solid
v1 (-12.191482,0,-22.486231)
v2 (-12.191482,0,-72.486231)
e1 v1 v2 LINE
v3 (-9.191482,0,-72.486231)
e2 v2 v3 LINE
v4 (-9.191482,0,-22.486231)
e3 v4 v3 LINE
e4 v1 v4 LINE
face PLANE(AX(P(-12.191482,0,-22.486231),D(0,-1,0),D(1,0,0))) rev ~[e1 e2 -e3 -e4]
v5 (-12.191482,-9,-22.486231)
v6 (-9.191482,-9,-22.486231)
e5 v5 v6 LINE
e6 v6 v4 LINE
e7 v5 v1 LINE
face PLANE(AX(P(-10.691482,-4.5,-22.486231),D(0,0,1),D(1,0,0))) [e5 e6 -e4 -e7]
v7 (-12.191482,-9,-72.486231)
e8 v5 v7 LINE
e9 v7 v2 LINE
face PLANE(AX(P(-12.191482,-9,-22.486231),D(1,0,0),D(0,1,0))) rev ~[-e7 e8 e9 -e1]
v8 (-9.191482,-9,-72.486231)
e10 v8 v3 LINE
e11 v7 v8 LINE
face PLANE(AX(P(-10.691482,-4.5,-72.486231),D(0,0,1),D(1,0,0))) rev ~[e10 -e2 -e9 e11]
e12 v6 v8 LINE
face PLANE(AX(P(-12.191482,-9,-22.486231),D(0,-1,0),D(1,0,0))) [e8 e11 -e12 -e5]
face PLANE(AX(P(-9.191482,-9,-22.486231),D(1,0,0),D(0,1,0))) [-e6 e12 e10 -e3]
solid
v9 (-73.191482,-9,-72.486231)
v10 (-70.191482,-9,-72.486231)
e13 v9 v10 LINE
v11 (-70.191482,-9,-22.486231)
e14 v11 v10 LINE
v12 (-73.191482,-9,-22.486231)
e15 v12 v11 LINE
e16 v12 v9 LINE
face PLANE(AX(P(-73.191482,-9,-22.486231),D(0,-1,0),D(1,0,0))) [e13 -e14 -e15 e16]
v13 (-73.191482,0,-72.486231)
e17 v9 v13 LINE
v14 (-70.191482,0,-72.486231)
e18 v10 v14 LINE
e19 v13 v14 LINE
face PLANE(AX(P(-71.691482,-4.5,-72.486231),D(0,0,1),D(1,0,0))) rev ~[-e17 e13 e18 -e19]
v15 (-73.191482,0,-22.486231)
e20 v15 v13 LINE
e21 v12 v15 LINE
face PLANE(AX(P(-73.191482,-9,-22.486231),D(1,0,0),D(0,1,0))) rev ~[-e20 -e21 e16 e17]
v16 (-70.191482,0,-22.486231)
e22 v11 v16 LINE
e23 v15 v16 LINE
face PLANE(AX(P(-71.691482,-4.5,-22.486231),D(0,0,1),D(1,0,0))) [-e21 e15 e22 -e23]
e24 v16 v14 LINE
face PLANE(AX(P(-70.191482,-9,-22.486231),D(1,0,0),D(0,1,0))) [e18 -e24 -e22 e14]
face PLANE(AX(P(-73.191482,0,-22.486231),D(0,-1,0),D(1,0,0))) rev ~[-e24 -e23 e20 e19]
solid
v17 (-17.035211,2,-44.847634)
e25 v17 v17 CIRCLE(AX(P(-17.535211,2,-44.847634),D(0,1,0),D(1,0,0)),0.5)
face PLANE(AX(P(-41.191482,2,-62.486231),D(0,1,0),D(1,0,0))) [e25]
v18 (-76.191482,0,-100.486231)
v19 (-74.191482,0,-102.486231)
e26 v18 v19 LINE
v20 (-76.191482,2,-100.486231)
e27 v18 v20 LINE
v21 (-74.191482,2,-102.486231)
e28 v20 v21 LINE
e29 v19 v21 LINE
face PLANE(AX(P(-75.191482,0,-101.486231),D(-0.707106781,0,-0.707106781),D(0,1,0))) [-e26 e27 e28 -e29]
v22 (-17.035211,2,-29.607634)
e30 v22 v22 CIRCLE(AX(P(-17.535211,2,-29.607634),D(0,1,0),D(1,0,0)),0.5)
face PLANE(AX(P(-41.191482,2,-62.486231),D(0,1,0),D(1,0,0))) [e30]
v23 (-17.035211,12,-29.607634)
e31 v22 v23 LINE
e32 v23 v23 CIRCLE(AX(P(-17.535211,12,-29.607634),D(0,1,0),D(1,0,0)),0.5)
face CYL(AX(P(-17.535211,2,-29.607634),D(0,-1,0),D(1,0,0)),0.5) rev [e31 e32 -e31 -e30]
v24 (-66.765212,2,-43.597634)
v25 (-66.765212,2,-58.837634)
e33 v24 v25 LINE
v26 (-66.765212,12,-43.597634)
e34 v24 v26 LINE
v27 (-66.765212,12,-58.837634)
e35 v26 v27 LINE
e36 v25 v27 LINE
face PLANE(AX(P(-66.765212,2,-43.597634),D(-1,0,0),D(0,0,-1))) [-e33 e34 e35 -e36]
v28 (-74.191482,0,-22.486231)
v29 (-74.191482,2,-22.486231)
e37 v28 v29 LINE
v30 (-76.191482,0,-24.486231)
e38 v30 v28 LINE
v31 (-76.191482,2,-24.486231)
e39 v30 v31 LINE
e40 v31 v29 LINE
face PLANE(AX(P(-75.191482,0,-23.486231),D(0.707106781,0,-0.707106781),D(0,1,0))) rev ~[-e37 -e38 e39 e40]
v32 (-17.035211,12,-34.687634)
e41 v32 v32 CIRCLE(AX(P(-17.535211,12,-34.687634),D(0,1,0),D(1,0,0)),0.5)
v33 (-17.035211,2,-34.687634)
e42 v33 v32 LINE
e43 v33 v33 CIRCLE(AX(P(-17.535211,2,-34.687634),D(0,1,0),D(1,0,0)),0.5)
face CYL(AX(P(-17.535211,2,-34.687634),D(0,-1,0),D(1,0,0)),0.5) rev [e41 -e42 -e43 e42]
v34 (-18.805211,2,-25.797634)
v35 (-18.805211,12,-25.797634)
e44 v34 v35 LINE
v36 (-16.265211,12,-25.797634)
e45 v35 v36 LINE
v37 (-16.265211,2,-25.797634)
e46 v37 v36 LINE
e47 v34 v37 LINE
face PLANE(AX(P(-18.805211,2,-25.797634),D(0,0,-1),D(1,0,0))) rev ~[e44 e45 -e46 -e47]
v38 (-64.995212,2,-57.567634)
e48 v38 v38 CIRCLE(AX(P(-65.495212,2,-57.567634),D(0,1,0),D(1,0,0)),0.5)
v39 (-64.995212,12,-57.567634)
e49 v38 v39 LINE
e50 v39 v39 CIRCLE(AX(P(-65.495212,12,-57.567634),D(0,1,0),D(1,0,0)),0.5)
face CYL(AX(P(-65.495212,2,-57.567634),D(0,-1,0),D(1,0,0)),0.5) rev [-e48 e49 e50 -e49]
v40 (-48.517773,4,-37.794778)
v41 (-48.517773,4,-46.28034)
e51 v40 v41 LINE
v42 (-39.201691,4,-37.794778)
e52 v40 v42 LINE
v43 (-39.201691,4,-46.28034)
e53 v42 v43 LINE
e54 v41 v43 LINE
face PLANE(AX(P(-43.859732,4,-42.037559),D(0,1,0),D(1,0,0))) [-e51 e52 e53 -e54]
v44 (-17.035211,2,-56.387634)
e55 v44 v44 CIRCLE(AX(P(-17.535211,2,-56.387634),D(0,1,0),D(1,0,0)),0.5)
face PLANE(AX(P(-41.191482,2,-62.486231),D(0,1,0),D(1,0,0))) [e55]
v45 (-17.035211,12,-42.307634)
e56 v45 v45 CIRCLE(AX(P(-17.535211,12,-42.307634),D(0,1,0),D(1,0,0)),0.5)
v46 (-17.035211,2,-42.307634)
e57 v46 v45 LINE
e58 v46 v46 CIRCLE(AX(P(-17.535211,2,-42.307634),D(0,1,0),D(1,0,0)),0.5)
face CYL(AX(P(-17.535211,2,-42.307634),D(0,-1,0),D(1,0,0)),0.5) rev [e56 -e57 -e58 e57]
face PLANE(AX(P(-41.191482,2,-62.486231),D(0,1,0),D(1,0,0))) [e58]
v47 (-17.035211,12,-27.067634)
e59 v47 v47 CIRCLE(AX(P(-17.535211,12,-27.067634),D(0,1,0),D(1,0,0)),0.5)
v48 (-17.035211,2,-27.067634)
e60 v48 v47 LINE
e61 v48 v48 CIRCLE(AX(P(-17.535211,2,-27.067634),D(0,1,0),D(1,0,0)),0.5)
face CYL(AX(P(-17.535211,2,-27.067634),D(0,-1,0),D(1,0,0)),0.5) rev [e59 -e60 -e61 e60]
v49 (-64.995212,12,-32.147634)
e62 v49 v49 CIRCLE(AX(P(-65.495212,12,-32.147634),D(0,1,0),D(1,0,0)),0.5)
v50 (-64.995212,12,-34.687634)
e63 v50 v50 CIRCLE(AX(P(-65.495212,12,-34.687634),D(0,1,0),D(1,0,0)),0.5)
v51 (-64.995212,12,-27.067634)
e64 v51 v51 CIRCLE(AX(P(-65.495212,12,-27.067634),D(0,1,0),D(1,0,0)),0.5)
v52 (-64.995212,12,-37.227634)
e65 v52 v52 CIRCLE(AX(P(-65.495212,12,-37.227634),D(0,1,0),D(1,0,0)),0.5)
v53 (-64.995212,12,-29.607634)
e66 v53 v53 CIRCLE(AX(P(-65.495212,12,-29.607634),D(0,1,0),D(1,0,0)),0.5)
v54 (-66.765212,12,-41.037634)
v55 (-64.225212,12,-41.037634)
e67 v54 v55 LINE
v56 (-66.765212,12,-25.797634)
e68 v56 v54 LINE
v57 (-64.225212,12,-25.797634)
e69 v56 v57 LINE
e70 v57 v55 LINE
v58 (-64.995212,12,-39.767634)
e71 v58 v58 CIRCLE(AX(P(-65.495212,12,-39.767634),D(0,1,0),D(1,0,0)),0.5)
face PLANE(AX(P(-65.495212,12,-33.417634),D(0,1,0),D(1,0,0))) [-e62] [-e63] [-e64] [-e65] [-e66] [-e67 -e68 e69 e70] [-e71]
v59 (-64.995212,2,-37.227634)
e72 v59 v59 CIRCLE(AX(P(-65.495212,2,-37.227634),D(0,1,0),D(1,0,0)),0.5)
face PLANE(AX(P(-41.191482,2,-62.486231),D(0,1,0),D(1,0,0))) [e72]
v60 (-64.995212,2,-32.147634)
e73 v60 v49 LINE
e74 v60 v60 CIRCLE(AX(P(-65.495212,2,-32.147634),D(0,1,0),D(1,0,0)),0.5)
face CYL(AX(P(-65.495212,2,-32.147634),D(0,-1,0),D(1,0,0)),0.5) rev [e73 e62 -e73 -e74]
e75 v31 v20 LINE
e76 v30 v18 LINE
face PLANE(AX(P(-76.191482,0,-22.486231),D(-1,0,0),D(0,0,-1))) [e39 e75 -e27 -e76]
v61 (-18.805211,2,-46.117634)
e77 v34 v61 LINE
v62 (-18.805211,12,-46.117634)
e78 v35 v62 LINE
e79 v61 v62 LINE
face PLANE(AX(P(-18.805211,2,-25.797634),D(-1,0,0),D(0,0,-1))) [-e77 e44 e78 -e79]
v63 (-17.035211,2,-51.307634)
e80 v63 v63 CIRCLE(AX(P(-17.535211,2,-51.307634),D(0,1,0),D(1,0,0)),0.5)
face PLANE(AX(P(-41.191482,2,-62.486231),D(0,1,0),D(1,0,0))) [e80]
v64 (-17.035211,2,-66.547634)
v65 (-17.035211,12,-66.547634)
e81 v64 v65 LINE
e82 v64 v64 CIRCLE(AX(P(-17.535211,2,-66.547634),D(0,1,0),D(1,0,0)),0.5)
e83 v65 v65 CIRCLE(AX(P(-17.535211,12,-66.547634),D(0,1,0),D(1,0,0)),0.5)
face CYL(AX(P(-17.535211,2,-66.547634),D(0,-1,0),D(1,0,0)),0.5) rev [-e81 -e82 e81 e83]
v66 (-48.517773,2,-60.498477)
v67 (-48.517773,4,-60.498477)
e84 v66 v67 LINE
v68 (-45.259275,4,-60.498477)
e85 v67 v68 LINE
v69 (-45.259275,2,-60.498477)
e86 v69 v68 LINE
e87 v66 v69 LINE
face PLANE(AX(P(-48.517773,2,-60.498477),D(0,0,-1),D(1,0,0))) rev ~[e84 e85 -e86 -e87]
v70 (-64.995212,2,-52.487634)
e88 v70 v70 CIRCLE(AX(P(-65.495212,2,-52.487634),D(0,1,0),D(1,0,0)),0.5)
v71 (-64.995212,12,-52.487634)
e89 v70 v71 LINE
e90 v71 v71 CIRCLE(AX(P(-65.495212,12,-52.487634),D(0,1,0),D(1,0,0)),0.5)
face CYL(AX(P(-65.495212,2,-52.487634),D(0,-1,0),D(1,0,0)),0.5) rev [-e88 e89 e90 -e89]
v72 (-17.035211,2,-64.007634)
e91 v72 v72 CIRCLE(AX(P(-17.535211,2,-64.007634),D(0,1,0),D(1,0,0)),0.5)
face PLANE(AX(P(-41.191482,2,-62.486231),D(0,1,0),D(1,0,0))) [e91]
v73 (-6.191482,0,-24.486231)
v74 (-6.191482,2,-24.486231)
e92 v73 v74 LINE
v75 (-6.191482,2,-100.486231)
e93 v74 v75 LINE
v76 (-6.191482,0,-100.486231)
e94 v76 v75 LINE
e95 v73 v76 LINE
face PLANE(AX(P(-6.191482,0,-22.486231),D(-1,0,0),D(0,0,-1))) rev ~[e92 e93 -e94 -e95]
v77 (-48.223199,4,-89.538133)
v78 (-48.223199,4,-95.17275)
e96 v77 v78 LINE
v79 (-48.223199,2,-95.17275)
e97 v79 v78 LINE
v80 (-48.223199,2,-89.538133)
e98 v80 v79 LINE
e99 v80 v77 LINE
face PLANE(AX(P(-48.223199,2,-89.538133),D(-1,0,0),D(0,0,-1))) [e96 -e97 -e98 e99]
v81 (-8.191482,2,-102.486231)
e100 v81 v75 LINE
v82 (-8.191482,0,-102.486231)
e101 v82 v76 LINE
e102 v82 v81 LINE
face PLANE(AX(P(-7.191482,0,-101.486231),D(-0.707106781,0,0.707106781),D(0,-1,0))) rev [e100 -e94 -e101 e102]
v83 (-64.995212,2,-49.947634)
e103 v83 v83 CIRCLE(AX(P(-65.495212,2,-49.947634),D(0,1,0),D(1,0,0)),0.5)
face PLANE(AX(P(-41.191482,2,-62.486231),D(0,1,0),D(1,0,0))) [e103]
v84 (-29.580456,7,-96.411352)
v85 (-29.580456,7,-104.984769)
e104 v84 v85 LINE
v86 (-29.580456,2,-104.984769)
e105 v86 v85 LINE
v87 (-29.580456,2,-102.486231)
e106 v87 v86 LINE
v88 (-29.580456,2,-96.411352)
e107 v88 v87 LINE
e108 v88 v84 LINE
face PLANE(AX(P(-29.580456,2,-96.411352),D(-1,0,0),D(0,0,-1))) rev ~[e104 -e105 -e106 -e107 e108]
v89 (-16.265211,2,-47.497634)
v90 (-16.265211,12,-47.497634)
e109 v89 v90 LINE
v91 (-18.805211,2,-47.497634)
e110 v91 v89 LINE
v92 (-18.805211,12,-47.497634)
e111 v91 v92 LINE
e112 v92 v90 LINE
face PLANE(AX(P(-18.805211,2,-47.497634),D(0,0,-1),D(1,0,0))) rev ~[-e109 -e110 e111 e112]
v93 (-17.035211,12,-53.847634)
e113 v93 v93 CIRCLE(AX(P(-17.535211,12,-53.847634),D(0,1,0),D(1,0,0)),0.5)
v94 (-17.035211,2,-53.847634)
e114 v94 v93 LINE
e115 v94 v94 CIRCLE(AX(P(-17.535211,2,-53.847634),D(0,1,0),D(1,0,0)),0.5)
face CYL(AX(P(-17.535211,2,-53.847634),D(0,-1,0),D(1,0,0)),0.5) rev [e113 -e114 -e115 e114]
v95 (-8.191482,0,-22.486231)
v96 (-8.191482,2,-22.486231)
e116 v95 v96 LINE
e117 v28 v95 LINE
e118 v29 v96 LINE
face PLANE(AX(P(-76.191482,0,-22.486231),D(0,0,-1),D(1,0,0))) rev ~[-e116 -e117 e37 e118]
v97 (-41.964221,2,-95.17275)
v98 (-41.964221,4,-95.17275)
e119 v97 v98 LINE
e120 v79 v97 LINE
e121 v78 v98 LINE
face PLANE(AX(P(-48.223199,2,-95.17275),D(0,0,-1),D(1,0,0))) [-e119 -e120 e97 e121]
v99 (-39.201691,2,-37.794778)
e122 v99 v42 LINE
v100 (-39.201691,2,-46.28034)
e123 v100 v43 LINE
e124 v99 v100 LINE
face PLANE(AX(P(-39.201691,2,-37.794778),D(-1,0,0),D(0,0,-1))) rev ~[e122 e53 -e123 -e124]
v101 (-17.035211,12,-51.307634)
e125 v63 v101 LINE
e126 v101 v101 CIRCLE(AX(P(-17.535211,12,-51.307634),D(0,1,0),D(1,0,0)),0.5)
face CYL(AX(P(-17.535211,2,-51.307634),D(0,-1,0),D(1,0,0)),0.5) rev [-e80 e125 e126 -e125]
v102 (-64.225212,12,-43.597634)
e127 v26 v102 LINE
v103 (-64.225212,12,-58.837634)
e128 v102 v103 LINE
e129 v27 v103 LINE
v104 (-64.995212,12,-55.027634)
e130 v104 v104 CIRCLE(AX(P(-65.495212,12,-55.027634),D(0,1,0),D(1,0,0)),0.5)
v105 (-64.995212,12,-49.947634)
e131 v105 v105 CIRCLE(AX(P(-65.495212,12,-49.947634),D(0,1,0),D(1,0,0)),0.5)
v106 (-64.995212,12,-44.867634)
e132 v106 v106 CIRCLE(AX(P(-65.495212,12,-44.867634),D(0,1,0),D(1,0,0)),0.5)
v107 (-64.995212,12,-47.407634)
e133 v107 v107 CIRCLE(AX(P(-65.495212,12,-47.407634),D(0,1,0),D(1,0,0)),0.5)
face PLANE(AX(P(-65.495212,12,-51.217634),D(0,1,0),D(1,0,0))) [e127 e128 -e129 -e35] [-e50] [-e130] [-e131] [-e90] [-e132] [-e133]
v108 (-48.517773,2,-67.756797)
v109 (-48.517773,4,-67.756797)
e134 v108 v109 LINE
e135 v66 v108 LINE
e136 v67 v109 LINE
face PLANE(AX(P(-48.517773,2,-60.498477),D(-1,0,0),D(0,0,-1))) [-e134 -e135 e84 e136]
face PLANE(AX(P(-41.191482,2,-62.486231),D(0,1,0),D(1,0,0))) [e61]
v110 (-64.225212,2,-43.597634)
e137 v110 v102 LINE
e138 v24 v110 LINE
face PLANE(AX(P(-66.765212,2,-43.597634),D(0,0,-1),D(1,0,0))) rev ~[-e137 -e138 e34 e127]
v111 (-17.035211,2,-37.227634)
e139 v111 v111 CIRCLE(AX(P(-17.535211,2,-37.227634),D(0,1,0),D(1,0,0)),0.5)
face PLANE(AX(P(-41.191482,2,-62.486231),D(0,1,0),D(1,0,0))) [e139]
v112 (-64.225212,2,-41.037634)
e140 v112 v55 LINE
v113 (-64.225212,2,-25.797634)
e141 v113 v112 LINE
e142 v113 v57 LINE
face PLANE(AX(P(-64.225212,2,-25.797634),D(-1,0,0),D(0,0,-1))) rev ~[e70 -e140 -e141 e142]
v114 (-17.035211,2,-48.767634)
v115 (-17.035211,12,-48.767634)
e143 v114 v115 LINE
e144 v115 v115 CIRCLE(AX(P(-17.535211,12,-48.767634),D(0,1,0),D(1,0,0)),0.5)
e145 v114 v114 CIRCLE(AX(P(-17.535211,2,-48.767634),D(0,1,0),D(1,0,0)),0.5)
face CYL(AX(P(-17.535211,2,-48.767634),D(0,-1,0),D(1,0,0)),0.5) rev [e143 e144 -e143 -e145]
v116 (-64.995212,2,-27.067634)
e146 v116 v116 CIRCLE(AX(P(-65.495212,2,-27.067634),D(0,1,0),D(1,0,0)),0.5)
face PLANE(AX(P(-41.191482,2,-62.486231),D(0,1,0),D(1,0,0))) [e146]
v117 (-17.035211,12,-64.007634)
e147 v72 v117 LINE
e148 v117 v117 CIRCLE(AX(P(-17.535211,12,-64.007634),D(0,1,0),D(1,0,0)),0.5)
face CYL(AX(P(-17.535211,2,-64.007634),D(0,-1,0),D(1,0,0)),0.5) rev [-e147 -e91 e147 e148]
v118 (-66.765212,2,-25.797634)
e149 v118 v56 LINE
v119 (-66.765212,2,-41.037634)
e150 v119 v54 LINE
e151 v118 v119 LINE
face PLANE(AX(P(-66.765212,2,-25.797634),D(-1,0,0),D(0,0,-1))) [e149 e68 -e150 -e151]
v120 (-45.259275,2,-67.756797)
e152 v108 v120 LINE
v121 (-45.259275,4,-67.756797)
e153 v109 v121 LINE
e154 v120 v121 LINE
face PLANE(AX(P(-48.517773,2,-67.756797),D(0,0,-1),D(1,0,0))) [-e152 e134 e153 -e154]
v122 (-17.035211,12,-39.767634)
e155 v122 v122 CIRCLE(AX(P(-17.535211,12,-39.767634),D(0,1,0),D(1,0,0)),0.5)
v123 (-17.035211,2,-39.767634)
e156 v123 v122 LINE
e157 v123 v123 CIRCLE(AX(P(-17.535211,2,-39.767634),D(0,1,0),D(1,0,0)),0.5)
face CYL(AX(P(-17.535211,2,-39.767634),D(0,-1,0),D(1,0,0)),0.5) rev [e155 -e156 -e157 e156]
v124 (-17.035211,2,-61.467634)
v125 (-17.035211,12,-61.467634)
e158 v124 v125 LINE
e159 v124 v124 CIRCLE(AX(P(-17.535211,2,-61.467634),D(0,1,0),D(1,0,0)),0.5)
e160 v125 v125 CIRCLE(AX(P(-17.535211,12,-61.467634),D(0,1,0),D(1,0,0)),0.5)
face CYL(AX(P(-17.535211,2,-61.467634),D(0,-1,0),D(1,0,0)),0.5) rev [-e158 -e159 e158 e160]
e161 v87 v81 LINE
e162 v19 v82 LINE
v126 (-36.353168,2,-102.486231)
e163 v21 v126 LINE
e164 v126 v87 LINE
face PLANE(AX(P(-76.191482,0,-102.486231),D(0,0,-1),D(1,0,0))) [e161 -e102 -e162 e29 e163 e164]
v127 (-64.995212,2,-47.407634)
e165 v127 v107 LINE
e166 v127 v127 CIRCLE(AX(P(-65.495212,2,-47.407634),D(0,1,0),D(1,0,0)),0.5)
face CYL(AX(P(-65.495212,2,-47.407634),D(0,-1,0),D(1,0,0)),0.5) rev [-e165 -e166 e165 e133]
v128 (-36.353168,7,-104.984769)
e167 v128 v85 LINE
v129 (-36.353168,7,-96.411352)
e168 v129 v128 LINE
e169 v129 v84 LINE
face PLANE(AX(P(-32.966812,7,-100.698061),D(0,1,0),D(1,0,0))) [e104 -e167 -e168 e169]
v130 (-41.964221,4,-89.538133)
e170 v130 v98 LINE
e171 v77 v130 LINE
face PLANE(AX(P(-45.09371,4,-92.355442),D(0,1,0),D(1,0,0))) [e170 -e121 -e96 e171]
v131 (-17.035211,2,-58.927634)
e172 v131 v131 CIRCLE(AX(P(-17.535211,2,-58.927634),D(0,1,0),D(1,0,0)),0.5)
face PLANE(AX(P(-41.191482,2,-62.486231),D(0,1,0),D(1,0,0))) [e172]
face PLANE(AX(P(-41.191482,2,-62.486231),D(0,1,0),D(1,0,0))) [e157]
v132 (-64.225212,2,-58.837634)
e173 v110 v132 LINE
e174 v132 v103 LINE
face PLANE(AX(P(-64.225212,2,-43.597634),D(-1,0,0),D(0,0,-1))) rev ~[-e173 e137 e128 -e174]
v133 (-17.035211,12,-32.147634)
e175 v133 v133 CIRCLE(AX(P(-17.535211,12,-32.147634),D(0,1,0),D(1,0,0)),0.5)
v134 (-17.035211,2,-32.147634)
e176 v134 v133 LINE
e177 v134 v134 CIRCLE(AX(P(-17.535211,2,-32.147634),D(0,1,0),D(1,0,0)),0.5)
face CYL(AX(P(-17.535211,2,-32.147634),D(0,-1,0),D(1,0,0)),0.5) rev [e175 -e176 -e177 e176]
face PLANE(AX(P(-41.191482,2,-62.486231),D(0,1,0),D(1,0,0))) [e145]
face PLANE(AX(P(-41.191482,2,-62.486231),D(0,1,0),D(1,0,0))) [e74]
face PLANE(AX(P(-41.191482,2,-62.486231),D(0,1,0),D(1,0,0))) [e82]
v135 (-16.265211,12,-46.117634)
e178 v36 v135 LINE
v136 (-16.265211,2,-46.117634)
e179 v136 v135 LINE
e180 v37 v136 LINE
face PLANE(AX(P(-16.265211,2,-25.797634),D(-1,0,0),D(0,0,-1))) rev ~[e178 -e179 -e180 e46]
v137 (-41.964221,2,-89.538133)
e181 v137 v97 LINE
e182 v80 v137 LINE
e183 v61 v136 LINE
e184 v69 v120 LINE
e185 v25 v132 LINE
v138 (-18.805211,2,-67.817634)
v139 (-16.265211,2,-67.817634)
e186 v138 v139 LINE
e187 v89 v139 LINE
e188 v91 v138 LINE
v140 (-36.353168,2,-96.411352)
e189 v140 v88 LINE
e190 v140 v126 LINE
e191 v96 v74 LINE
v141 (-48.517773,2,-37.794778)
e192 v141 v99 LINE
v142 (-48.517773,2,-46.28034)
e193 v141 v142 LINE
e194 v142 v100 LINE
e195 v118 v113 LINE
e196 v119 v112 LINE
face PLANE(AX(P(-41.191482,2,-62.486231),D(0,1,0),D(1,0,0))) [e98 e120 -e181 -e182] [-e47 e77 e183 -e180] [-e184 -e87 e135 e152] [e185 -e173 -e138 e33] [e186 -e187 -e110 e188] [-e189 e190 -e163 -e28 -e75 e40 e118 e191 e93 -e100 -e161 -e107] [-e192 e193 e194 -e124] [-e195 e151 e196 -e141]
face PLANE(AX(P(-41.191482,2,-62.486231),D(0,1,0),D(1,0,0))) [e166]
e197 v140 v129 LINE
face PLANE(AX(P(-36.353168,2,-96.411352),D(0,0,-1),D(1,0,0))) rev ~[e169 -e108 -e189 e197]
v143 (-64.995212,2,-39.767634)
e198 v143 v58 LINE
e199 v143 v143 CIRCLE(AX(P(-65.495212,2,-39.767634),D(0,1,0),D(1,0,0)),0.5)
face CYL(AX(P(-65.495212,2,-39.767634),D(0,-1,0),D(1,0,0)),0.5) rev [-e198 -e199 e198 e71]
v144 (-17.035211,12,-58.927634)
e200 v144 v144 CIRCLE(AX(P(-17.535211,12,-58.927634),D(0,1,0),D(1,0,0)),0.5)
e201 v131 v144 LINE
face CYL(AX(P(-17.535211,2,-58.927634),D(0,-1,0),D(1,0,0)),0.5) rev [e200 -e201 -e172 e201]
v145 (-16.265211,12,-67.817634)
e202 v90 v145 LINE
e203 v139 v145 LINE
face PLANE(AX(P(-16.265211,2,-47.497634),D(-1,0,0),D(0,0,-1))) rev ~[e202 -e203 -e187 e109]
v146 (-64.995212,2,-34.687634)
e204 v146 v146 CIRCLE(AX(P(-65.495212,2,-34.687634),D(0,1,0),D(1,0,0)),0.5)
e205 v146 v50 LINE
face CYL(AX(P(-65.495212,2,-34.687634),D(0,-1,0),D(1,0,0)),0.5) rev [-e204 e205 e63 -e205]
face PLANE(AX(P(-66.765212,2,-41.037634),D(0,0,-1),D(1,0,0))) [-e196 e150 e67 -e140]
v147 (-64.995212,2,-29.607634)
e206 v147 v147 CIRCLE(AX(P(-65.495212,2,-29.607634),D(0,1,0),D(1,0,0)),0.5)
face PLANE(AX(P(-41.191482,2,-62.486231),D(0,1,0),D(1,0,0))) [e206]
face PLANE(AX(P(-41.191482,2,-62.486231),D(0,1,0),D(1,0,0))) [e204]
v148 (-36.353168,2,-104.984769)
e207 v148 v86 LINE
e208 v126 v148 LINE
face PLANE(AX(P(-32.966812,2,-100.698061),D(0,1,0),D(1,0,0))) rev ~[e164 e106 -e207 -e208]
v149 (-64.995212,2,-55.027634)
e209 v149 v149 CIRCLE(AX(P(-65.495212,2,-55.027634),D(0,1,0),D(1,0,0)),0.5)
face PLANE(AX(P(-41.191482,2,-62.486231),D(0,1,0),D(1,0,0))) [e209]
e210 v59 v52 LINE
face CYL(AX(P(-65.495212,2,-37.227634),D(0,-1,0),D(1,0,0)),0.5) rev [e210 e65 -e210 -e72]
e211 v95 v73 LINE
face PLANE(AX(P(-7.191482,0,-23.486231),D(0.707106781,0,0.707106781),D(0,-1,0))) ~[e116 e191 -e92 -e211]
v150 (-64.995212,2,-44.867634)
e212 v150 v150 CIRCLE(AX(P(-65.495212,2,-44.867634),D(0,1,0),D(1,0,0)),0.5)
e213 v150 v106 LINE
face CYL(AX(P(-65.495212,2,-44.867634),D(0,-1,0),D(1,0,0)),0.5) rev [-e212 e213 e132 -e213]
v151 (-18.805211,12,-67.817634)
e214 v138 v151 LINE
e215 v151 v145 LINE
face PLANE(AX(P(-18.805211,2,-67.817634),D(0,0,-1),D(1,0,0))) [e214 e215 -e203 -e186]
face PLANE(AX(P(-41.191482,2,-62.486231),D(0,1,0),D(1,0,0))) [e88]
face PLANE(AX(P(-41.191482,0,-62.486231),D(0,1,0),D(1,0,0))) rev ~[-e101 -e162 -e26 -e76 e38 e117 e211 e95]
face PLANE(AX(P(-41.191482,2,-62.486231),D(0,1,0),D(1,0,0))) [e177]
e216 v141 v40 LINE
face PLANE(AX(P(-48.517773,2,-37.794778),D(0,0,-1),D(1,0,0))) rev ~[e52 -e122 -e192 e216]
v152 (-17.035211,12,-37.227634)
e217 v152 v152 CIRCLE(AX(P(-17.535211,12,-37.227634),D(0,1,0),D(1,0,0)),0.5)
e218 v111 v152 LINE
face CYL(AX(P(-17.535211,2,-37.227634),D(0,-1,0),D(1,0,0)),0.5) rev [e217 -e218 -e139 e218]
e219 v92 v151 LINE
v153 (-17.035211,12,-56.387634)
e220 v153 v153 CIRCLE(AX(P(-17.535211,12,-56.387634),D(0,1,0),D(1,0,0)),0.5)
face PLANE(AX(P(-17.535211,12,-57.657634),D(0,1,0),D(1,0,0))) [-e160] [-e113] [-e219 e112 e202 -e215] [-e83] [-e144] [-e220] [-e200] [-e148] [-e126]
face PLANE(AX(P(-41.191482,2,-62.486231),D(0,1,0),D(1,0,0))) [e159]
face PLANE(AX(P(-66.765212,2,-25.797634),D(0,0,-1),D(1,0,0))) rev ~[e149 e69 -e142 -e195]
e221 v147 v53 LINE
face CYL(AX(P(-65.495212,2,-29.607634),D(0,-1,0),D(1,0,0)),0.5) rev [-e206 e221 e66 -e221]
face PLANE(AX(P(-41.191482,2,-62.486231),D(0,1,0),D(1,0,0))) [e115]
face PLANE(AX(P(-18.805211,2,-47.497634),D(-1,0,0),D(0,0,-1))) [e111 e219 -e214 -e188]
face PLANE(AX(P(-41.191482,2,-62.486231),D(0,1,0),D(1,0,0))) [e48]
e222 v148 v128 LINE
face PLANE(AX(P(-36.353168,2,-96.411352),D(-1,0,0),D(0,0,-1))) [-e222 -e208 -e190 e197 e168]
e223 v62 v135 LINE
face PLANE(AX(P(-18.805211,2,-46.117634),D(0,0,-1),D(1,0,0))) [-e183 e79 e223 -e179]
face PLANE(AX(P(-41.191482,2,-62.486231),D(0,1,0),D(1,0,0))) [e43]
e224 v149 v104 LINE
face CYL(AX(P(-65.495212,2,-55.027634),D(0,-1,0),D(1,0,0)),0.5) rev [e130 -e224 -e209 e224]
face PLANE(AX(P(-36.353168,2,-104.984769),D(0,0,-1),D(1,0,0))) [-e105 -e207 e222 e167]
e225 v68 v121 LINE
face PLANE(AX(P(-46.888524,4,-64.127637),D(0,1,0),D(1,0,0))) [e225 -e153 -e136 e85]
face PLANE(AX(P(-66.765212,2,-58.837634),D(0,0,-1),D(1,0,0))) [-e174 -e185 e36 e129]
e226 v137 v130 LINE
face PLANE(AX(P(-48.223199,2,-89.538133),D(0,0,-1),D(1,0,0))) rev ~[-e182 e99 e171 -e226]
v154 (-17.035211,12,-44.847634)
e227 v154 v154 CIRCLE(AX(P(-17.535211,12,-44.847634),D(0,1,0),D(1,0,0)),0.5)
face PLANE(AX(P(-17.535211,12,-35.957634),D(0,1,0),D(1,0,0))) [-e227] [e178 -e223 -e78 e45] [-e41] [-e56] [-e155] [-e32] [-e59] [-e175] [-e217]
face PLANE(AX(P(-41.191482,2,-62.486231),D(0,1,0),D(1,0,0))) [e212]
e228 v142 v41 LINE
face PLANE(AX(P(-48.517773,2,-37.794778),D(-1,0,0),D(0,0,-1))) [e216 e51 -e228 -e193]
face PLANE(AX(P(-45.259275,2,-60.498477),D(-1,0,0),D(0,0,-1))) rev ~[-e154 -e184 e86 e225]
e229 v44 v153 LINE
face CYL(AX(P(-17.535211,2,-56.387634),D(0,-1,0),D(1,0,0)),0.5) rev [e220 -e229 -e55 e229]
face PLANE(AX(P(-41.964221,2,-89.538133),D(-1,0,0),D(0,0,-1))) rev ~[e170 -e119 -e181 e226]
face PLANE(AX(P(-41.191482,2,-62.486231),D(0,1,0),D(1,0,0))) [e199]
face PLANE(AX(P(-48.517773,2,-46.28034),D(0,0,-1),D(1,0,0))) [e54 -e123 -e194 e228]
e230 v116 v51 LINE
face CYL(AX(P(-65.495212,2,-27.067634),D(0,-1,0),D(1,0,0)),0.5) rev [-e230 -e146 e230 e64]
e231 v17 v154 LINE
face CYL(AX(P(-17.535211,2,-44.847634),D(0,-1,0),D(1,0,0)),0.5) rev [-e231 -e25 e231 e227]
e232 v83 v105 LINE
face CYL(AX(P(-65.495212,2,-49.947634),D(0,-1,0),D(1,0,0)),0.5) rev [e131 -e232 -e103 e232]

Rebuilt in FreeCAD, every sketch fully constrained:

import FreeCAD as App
import Part
import Sketcher


def edges_at(feature, points):
    """Names of the edges that pass closest to the given points."""
    edges = feature.Shape.Edges
    near = lambda p: min(range(len(edges)), key=lambda i: edges[i].distToShape(Part.Vertex(*p))[0])
    return sorted({f"Edge{near(p) + 1}" for p in points})

doc = App.newDocument("Part")
body = doc.addObject("PartDesign::Body", "Body")

# Sketch on XZ plane
sketch1 = body.newObject("Sketcher::SketchObject", "Sketch")
sketch1.AttachmentSupport = (doc.getObject("XZ_Plane"), [""])
sketch1.MapMode = "FlatFace"
sketch1.addGeometry(Part.LineSegment(App.Vector(-76.191482, -102.486231, 0), App.Vector(-76.191482, -22.486231, 0)), False)
sketch1.addGeometry(Part.LineSegment(App.Vector(-76.191482, -22.486231, 0), App.Vector(-6.191482, -22.486231, 0)), False)
sketch1.addGeometry(Part.LineSegment(App.Vector(-6.191482, -22.486231, 0), App.Vector(-6.191482, -102.486231, 0)), False)
sketch1.addGeometry(Part.LineSegment(App.Vector(-6.191482, -102.486231, 0), App.Vector(-76.191482, -102.486231, 0)), False)
sketch1.addConstraint(Sketcher.Constraint("Coincident", 0, 2, 1, 1))
sketch1.addConstraint(Sketcher.Constraint("Coincident", 1, 2, 2, 1))
sketch1.addConstraint(Sketcher.Constraint("Coincident", 2, 2, 3, 1))
sketch1.addConstraint(Sketcher.Constraint("Coincident", 3, 2, 0, 1))
sketch1.addConstraint(Sketcher.Constraint("Vertical", 0))
sketch1.addConstraint(Sketcher.Constraint("Horizontal", 1))
sketch1.addConstraint(Sketcher.Constraint("Vertical", 2))
sketch1.addConstraint(Sketcher.Constraint("Horizontal", 3))
sketch1.addConstraint(Sketcher.Constraint("DistanceX", 1, 1, 1, 2, 70.0))
sketch1.addConstraint(Sketcher.Constraint("DistanceY", 0, 1, 0, 2, 80.0))
sketch1.addConstraint(Sketcher.Constraint("DistanceX", 0, 2, -1, 1, 76.191482))
sketch1.addConstraint(Sketcher.Constraint("DistanceY", 0, 2, -1, 1, 22.486231))
pad1 = body.newObject("PartDesign::Pad", "Pad")
pad1.Profile = sketch1
pad1.Length = 2
pad1.Reversed = True

# Sketch on XZ plane
sketch2 = body.newObject("Sketcher::SketchObject", "Sketch001")
sketch2.AttachmentSupport = (doc.getObject("XZ_Plane"), [""])
sketch2.MapMode = "FlatFace"
sketch2.AttachmentOffset = App.Placement(App.Vector(0, 0, -2), App.Rotation())
sketch2.addGeometry(Part.LineSegment(App.Vector(-66.765212, -58.837634, 0), App.Vector(-66.765212, -43.597634, 0)), False)
sketch2.addGeometry(Part.LineSegment(App.Vector(-66.765212, -43.597634, 0), App.Vector(-64.225212, -43.597634, 0)), False)
sketch2.addGeometry(Part.LineSegment(App.Vector(-64.225212, -43.597634, 0), App.Vector(-64.225212, -58.837634, 0)), False)
sketch2.addGeometry(Part.LineSegment(App.Vector(-64.225212, -58.837634, 0), App.Vector(-66.765212, -58.837634, 0)), False)
sketch2.addGeometry(Part.Circle(App.Vector(-65.495212, -44.867634, 0), App.Vector(0, 0, 1), 0.5), False)
sketch2.addGeometry(Part.Circle(App.Vector(-65.495212, -47.407634, 0), App.Vector(0, 0, 1), 0.5), False)
sketch2.addGeometry(Part.Circle(App.Vector(-65.495212, -49.947634, 0), App.Vector(0, 0, 1), 0.5), False)
sketch2.addGeometry(Part.Circle(App.Vector(-65.495212, -52.487634, 0), App.Vector(0, 0, 1), 0.5), False)
sketch2.addGeometry(Part.Circle(App.Vector(-65.495212, -55.027634, 0), App.Vector(0, 0, 1), 0.5), False)
sketch2.addGeometry(Part.Circle(App.Vector(-65.495212, -57.567634, 0), App.Vector(0, 0, 1), 0.5), False)
sketch2.addGeometry(Part.LineSegment(App.Vector(-66.765212, -41.037634, 0), App.Vector(-66.765212, -25.797634, 0)), False)
sketch2.addGeometry(Part.LineSegment(App.Vector(-66.765212, -25.797634, 0), App.Vector(-64.225212, -25.797634, 0)), False)
sketch2.addGeometry(Part.LineSegment(App.Vector(-64.225212, -25.797634, 0), App.Vector(-64.225212, -41.037634, 0)), False)
sketch2.addGeometry(Part.LineSegment(App.Vector(-64.225212, -41.037634, 0), App.Vector(-66.765212, -41.037634, 0)), False)
sketch2.addGeometry(Part.Circle(App.Vector(-65.495212, -27.067634, 0), App.Vector(0, 0, 1), 0.5), False)
sketch2.addGeometry(Part.Circle(App.Vector(-65.495212, -29.607634, 0), App.Vector(0, 0, 1), 0.5), False)
sketch2.addGeometry(Part.Circle(App.Vector(-65.495212, -32.147634, 0), App.Vector(0, 0, 1), 0.5), False)
sketch2.addGeometry(Part.Circle(App.Vector(-65.495212, -34.687634, 0), App.Vector(0, 0, 1), 0.5), False)
sketch2.addGeometry(Part.Circle(App.Vector(-65.495212, -37.227634, 0), App.Vector(0, 0, 1), 0.5), False)
sketch2.addGeometry(Part.Circle(App.Vector(-65.495212, -39.767634, 0), App.Vector(0, 0, 1), 0.5), False)
sketch2.addGeometry(Part.LineSegment(App.Vector(-18.805211, -67.817634, 0), App.Vector(-18.805211, -47.497634, 0)), False)
sketch2.addGeometry(Part.LineSegment(App.Vector(-18.805211, -47.497634, 0), App.Vector(-16.265211, -47.497634, 0)), False)
sketch2.addGeometry(Part.LineSegment(App.Vector(-16.265211, -47.497634, 0), App.Vector(-16.265211, -67.817634, 0)), False)
sketch2.addGeometry(Part.LineSegment(App.Vector(-16.265211, -67.817634, 0), App.Vector(-18.805211, -67.817634, 0)), False)
sketch2.addGeometry(Part.Circle(App.Vector(-17.535211, -48.767634, 0), App.Vector(0, 0, 1), 0.5), False)
sketch2.addGeometry(Part.Circle(App.Vector(-17.535211, -51.307634, 0), App.Vector(0, 0, 1), 0.5), False)
sketch2.addGeometry(Part.Circle(App.Vector(-17.535211, -53.847634, 0), App.Vector(0, 0, 1), 0.5), False)
sketch2.addGeometry(Part.Circle(App.Vector(-17.535211, -56.387634, 0), App.Vector(0, 0, 1), 0.5), False)
sketch2.addGeometry(Part.Circle(App.Vector(-17.535211, -58.927634, 0), App.Vector(0, 0, 1), 0.5), False)
sketch2.addGeometry(Part.Circle(App.Vector(-17.535211, -61.467634, 0), App.Vector(0, 0, 1), 0.5), False)
sketch2.addGeometry(Part.Circle(App.Vector(-17.535211, -64.007634, 0), App.Vector(0, 0, 1), 0.5), False)
sketch2.addGeometry(Part.Circle(App.Vector(-17.535211, -66.547634, 0), App.Vector(0, 0, 1), 0.5), False)
sketch2.addGeometry(Part.LineSegment(App.Vector(-18.805211, -46.117634, 0), App.Vector(-18.805211, -25.797634, 0)), False)
sketch2.addGeometry(Part.LineSegment(App.Vector(-18.805211, -25.797634, 0), App.Vector(-16.265211, -25.797634, 0)), False)
sketch2.addGeometry(Part.LineSegment(App.Vector(-16.265211, -25.797634, 0), App.Vector(-16.265211, -46.117634, 0)), False)
sketch2.addGeometry(Part.LineSegment(App.Vector(-16.265211, -46.117634, 0), App.Vector(-18.805211, -46.117634, 0)), False)
sketch2.addGeometry(Part.Circle(App.Vector(-17.535211, -27.067634, 0), App.Vector(0, 0, 1), 0.5), False)
sketch2.addGeometry(Part.Circle(App.Vector(-17.535211, -29.607634, 0), App.Vector(0, 0, 1), 0.5), False)
sketch2.addGeometry(Part.Circle(App.Vector(-17.535211, -32.147634, 0), App.Vector(0, 0, 1), 0.5), False)
sketch2.addGeometry(Part.Circle(App.Vector(-17.535211, -34.687634, 0), App.Vector(0, 0, 1), 0.5), False)
sketch2.addGeometry(Part.Circle(App.Vector(-17.535211, -37.227634, 0), App.Vector(0, 0, 1), 0.5), False)
sketch2.addGeometry(Part.Circle(App.Vector(-17.535211, -39.767634, 0), App.Vector(0, 0, 1), 0.5), False)
sketch2.addGeometry(Part.Circle(App.Vector(-17.535211, -42.307634, 0), App.Vector(0, 0, 1), 0.5), False)
sketch2.addGeometry(Part.Circle(App.Vector(-17.535211, -44.847634, 0), App.Vector(0, 0, 1), 0.5), False)
sketch2.addConstraint(Sketcher.Constraint("Coincident", 0, 2, 1, 1))
sketch2.addConstraint(Sketcher.Constraint("Coincident", 1, 2, 2, 1))
sketch2.addConstraint(Sketcher.Constraint("Coincident", 2, 2, 3, 1))
sketch2.addConstraint(Sketcher.Constraint("Coincident", 3, 2, 0, 1))
sketch2.addConstraint(Sketcher.Constraint("Coincident", 10, 2, 11, 1))
sketch2.addConstraint(Sketcher.Constraint("Coincident", 11, 2, 12, 1))
sketch2.addConstraint(Sketcher.Constraint("Coincident", 12, 2, 13, 1))
sketch2.addConstraint(Sketcher.Constraint("Coincident", 13, 2, 10, 1))
sketch2.addConstraint(Sketcher.Constraint("Coincident", 20, 2, 21, 1))
sketch2.addConstraint(Sketcher.Constraint("Coincident", 21, 2, 22, 1))
sketch2.addConstraint(Sketcher.Constraint("Coincident", 22, 2, 23, 1))
sketch2.addConstraint(Sketcher.Constraint("Coincident", 23, 2, 20, 1))
sketch2.addConstraint(Sketcher.Constraint("Coincident", 32, 2, 33, 1))
sketch2.addConstraint(Sketcher.Constraint("Coincident", 33, 2, 34, 1))
sketch2.addConstraint(Sketcher.Constraint("Coincident", 34, 2, 35, 1))
sketch2.addConstraint(Sketcher.Constraint("Coincident", 35, 2, 32, 1))
sketch2.addConstraint(Sketcher.Constraint("Vertical", 0))
sketch2.addConstraint(Sketcher.Constraint("Horizontal", 1))
sketch2.addConstraint(Sketcher.Constraint("Vertical", 2))
sketch2.addConstraint(Sketcher.Constraint("Horizontal", 3))
sketch2.addConstraint(Sketcher.Constraint("Vertical", 10))
sketch2.addConstraint(Sketcher.Constraint("Horizontal", 11))
sketch2.addConstraint(Sketcher.Constraint("Vertical", 12))
sketch2.addConstraint(Sketcher.Constraint("Horizontal", 13))
sketch2.addConstraint(Sketcher.Constraint("Vertical", 20))
sketch2.addConstraint(Sketcher.Constraint("Horizontal", 21))
sketch2.addConstraint(Sketcher.Constraint("Vertical", 22))
sketch2.addConstraint(Sketcher.Constraint("Horizontal", 23))
sketch2.addConstraint(Sketcher.Constraint("Vertical", 32))
sketch2.addConstraint(Sketcher.Constraint("Horizontal", 33))
sketch2.addConstraint(Sketcher.Constraint("Vertical", 34))
sketch2.addConstraint(Sketcher.Constraint("Horizontal", 35))
sketch2.addConstraint(Sketcher.Constraint("Equal", 4, 5))
sketch2.addConstraint(Sketcher.Constraint("Equal", 5, 6))
sketch2.addConstraint(Sketcher.Constraint("Equal", 6, 7))
sketch2.addConstraint(Sketcher.Constraint("Equal", 7, 8))
sketch2.addConstraint(Sketcher.Constraint("Equal", 8, 9))
sketch2.addConstraint(Sketcher.Constraint("Equal", 9, 14))
sketch2.addConstraint(Sketcher.Constraint("Equal", 14, 15))
sketch2.addConstraint(Sketcher.Constraint("Equal", 15, 16))
sketch2.addConstraint(Sketcher.Constraint("Equal", 16, 17))
sketch2.addConstraint(Sketcher.Constraint("Equal", 17, 18))
sketch2.addConstraint(Sketcher.Constraint("Equal", 18, 19))
sketch2.addConstraint(Sketcher.Constraint("Equal", 19, 24))
sketch2.addConstraint(Sketcher.Constraint("Equal", 24, 25))
sketch2.addConstraint(Sketcher.Constraint("Equal", 25, 26))
sketch2.addConstraint(Sketcher.Constraint("Equal", 26, 27))
sketch2.addConstraint(Sketcher.Constraint("Equal", 27, 28))
sketch2.addConstraint(Sketcher.Constraint("Equal", 28, 29))
sketch2.addConstraint(Sketcher.Constraint("Equal", 29, 30))
sketch2.addConstraint(Sketcher.Constraint("Equal", 30, 31))
sketch2.addConstraint(Sketcher.Constraint("Equal", 31, 36))
sketch2.addConstraint(Sketcher.Constraint("Equal", 36, 37))
sketch2.addConstraint(Sketcher.Constraint("Equal", 37, 38))
sketch2.addConstraint(Sketcher.Constraint("Equal", 38, 39))
sketch2.addConstraint(Sketcher.Constraint("Equal", 39, 40))
sketch2.addConstraint(Sketcher.Constraint("Equal", 40, 41))
sketch2.addConstraint(Sketcher.Constraint("Equal", 41, 42))
sketch2.addConstraint(Sketcher.Constraint("Equal", 42, 43))
sketch2.addConstraint(Sketcher.Constraint("Horizontal", 14, 3, 36, 3))
sketch2.addConstraint(Sketcher.Constraint("Horizontal", 15, 3, 37, 3))
sketch2.addConstraint(Sketcher.Constraint("Horizontal", 16, 3, 38, 3))
sketch2.addConstraint(Sketcher.Constraint("Horizontal", 17, 3, 39, 3))
sketch2.addConstraint(Sketcher.Constraint("Horizontal", 18, 3, 40, 3))
sketch2.addConstraint(Sketcher.Constraint("Horizontal", 19, 3, 41, 3))
sketch2.addConstraint(Sketcher.Constraint("Horizontal", 11, 2, 32, 2))
sketch2.addConstraint(Sketcher.Constraint("Vertical", 4, 3, 5, 3))
sketch2.addConstraint(Sketcher.Constraint("Vertical", 5, 3, 6, 3))
sketch2.addConstraint(Sketcher.Constraint("Vertical", 6, 3, 7, 3))
sketch2.addConstraint(Sketcher.Constraint("Vertical", 7, 3, 8, 3))
sketch2.addConstraint(Sketcher.Constraint("Vertical", 8, 3, 9, 3))
sketch2.addConstraint(Sketcher.Constraint("Vertical", 9, 3, 14, 3))
sketch2.addConstraint(Sketcher.Constraint("Vertical", 14, 3, 15, 3))
sketch2.addConstraint(Sketcher.Constraint("Vertical", 15, 3, 16, 3))
sketch2.addConstraint(Sketcher.Constraint("Vertical", 16, 3, 17, 3))
sketch2.addConstraint(Sketcher.Constraint("Vertical", 17, 3, 18, 3))
sketch2.addConstraint(Sketcher.Constraint("Vertical", 18, 3, 19, 3))
sketch2.addConstraint(Sketcher.Constraint("Vertical", 24, 3, 25, 3))
sketch2.addConstraint(Sketcher.Constraint("Vertical", 25, 3, 26, 3))
sketch2.addConstraint(Sketcher.Constraint("Vertical", 26, 3, 27, 3))
sketch2.addConstraint(Sketcher.Constraint("Vertical", 27, 3, 28, 3))
sketch2.addConstraint(Sketcher.Constraint("Vertical", 28, 3, 29, 3))
sketch2.addConstraint(Sketcher.Constraint("Vertical", 29, 3, 30, 3))
sketch2.addConstraint(Sketcher.Constraint("Vertical", 30, 3, 31, 3))
sketch2.addConstraint(Sketcher.Constraint("Vertical", 31, 3, 36, 3))
sketch2.addConstraint(Sketcher.Constraint("Vertical", 36, 3, 37, 3))
sketch2.addConstraint(Sketcher.Constraint("Vertical", 37, 3, 38, 3))
sketch2.addConstraint(Sketcher.Constraint("Vertical", 38, 3, 39, 3))
sketch2.addConstraint(Sketcher.Constraint("Vertical", 39, 3, 40, 3))
sketch2.addConstraint(Sketcher.Constraint("Vertical", 40, 3, 41, 3))
sketch2.addConstraint(Sketcher.Constraint("Vertical", 41, 3, 42, 3))
sketch2.addConstraint(Sketcher.Constraint("Vertical", 42, 3, 43, 3))
sketch2.addConstraint(Sketcher.Constraint("Vertical", 3, 2, 10, 2))
sketch2.addConstraint(Sketcher.Constraint("Vertical", 2, 2, 11, 2))
sketch2.addConstraint(Sketcher.Constraint("Vertical", 23, 2, 32, 2))
sketch2.addConstraint(Sketcher.Constraint("Vertical", 22, 2, 33, 2))
sketch2.addConstraint(Sketcher.Constraint("Equal", 13, 21))
sketch2.addConstraint(Sketcher.Constraint("Equal", 2, 10))
sketch2.addConstraint(Sketcher.Constraint("Equal", 22, 32))
sketch2.addConstraint(Sketcher.Constraint("Diameter", 4, 1.0))
sketch2.addConstraint(Sketcher.Constraint("DistanceY", 24, 3, 41, 3, 9.0))
sketch2.addConstraint(Sketcher.Constraint("DistanceY", 25, 3, 42, 3, 9.0))
sketch2.addConstraint(Sketcher.Constraint("DistanceX", 1, 1, 1, 2, 2.54))
sketch2.addConstraint(Sketcher.Constraint("DistanceY", 0, 1, 0, 2, 15.24))
sketch2.addConstraint(Sketcher.Constraint("DistanceY", 20, 1, 20, 2, 20.32))
sketch2.addConstraint(Sketcher.Constraint("DistanceY", 9, 3, 4, 3, 12.7))
sketch2.addConstraint(Sketcher.Constraint("DistanceY", 4, 3, 14, 3, 17.8))
sketch2.addConstraint(Sketcher.Constraint("DistanceY", 5, 3, 15, 3, 17.8))
sketch2.addConstraint(Sketcher.Constraint("DistanceY", 6, 3, 16, 3, 17.8))
sketch2.addConstraint(Sketcher.Constraint("DistanceY", 4, 3, 19, 3, 5.1))
sketch2.addConstraint(Sketcher.Constraint("DistanceY", 25, 3, 5, 3, 3.9))
sketch2.addConstraint(Sketcher.Constraint("DistanceY", 29, 3, 24, 3, 12.7))
sketch2.addConstraint(Sketcher.Constraint("DistanceY", 30, 3, 25, 3, 12.7))
sketch2.addConstraint(Sketcher.Constraint("DistanceY", 31, 3, 26, 3, 12.7))
sketch2.addConstraint(Sketcher.Constraint("DistanceY", 26, 3, 38, 3, 21.7))
sketch2.addConstraint(Sketcher.Constraint("DistanceY", 5, 3, 4, 3, 2.54))
sketch2.addConstraint(Sketcher.Constraint("DistanceY", 6, 3, 5, 3, 2.54))
sketch2.addConstraint(Sketcher.Constraint("DistanceY", 7, 3, 6, 3, 2.54))
sketch2.addConstraint(Sketcher.Constraint("DistanceY", 8, 3, 7, 3, 2.54))
sketch2.addConstraint(Sketcher.Constraint("DistanceY", 17, 3, 16, 3, 2.54))
sketch2.addConstraint(Sketcher.Constraint("DistanceY", 18, 3, 17, 3, 2.54))
sketch2.addConstraint(Sketcher.Constraint("DistanceX", 6, 3, 24, 3, 47.960001))
sketch2.addConstraint(Sketcher.Constraint("DistanceY", 27, 3, 26, 3, 2.54))
sketch2.addConstraint(Sketcher.Constraint("DistanceY", 28, 3, 27, 3, 2.54))
sketch2.addConstraint(Sketcher.Constraint("DistanceY", 43, 3, 42, 3, 2.54))
sketch2.addConstraint(Sketcher.Constraint("DistanceX", 0, 2, 4, 3, 1.27))
sketch2.addConstraint(Sketcher.Constraint("DistanceY", 4, 3, 0, 2, 1.27))
sketch2.addConstraint(Sketcher.Constraint("DistanceY", 14, 3, 10, 2, 1.27))
sketch2.addConstraint(Sketcher.Constraint("DistanceX", 20, 2, 24, 3, 1.27))
sketch2.addConstraint(Sketcher.Constraint("DistanceY", 24, 3, 20, 2, 1.27))
sketch2.addConstraint(Sketcher.Constraint("DistanceX", 4, 3, -1, 1, 65.495212))
sketch2.addConstraint(Sketcher.Constraint("DistanceY", 4, 3, -1, 1, 44.867634))
pad2 = body.newObject("PartDesign::Pad", "Pad001")
pad2.Profile = sketch2
pad2.Length = 10
pad2.Reversed = True

# Sketch on XZ plane
sketch3 = body.newObject("Sketcher::SketchObject", "Sketch002")
sketch3.AttachmentSupport = (doc.getObject("XZ_Plane"), [""])
sketch3.MapMode = "FlatFace"
sketch3.AttachmentOffset = App.Placement(App.Vector(0, 0, -2), App.Rotation())
sketch3.addGeometry(Part.LineSegment(App.Vector(-36.353168, -104.984769, 0), App.Vector(-36.353168, -96.411352, 0)), False)
sketch3.addGeometry(Part.LineSegment(App.Vector(-36.353168, -96.411352, 0), App.Vector(-29.580456, -96.411352, 0)), False)
sketch3.addGeometry(Part.LineSegment(App.Vector(-29.580456, -96.411352, 0), App.Vector(-29.580456, -104.984769, 0)), False)
sketch3.addGeometry(Part.LineSegment(App.Vector(-29.580456, -104.984769, 0), App.Vector(-36.353168, -104.984769, 0)), False)
sketch3.addConstraint(Sketcher.Constraint("Coincident", 0, 2, 1, 1))
sketch3.addConstraint(Sketcher.Constraint("Coincident", 1, 2, 2, 1))
sketch3.addConstraint(Sketcher.Constraint("Coincident", 2, 2, 3, 1))
sketch3.addConstraint(Sketcher.Constraint("Coincident", 3, 2, 0, 1))
sketch3.addConstraint(Sketcher.Constraint("Vertical", 0))
sketch3.addConstraint(Sketcher.Constraint("Horizontal", 1))
sketch3.addConstraint(Sketcher.Constraint("Vertical", 2))
sketch3.addConstraint(Sketcher.Constraint("Horizontal", 3))
sketch3.addConstraint(Sketcher.Constraint("DistanceX", 1, 1, 1, 2, 6.772713))
sketch3.addConstraint(Sketcher.Constraint("DistanceY", 0, 1, 0, 2, 8.573417))
sketch3.addConstraint(Sketcher.Constraint("DistanceX", 0, 2, -1, 1, 36.353168))
sketch3.addConstraint(Sketcher.Constraint("DistanceY", 0, 2, -1, 1, 96.411352))
pad3 = body.newObject("PartDesign::Pad", "Pad002")
pad3.Profile = sketch3
pad3.Length = 5
pad3.Reversed = True

# Sketch on XZ plane
sketch4 = body.newObject("Sketcher::SketchObject", "Sketch003")
sketch4.AttachmentSupport = (doc.getObject("XZ_Plane"), [""])
sketch4.MapMode = "FlatFace"
sketch4.AttachmentOffset = App.Placement(App.Vector(0, 0, -2), App.Rotation())
sketch4.addGeometry(Part.LineSegment(App.Vector(-48.517773, -46.28034, 0), App.Vector(-48.517773, -37.794778, 0)), False)
sketch4.addGeometry(Part.LineSegment(App.Vector(-48.517773, -37.794778, 0), App.Vector(-39.201691, -37.794778, 0)), False)
sketch4.addGeometry(Part.LineSegment(App.Vector(-39.201691, -37.794778, 0), App.Vector(-39.201691, -46.28034, 0)), False)
sketch4.addGeometry(Part.LineSegment(App.Vector(-39.201691, -46.28034, 0), App.Vector(-48.517773, -46.28034, 0)), False)
sketch4.addGeometry(Part.LineSegment(App.Vector(-48.517773, -67.756797, 0), App.Vector(-48.517773, -60.498477, 0)), False)
sketch4.addGeometry(Part.LineSegment(App.Vector(-48.517773, -60.498477, 0), App.Vector(-45.259275, -60.498477, 0)), False)
sketch4.addGeometry(Part.LineSegment(App.Vector(-45.259275, -60.498477, 0), App.Vector(-45.259275, -67.756797, 0)), False)
sketch4.addGeometry(Part.LineSegment(App.Vector(-45.259275, -67.756797, 0), App.Vector(-48.517773, -67.756797, 0)), False)
sketch4.addGeometry(Part.LineSegment(App.Vector(-48.223199, -95.17275, 0), App.Vector(-48.223199, -89.538133, 0)), False)
sketch4.addGeometry(Part.LineSegment(App.Vector(-48.223199, -89.538133, 0), App.Vector(-41.964221, -89.538133, 0)), False)
sketch4.addGeometry(Part.LineSegment(App.Vector(-41.964221, -89.538133, 0), App.Vector(-41.964221, -95.17275, 0)), False)
sketch4.addGeometry(Part.LineSegment(App.Vector(-41.964221, -95.17275, 0), App.Vector(-48.223199, -95.17275, 0)), False)
sketch4.addConstraint(Sketcher.Constraint("Coincident", 0, 2, 1, 1))
sketch4.addConstraint(Sketcher.Constraint("Coincident", 1, 2, 2, 1))
sketch4.addConstraint(Sketcher.Constraint("Coincident", 2, 2, 3, 1))
sketch4.addConstraint(Sketcher.Constraint("Coincident", 3, 2, 0, 1))
sketch4.addConstraint(Sketcher.Constraint("Coincident", 4, 2, 5, 1))
sketch4.addConstraint(Sketcher.Constraint("Coincident", 5, 2, 6, 1))
sketch4.addConstraint(Sketcher.Constraint("Coincident", 6, 2, 7, 1))
sketch4.addConstraint(Sketcher.Constraint("Coincident", 7, 2, 4, 1))
sketch4.addConstraint(Sketcher.Constraint("Coincident", 8, 2, 9, 1))
sketch4.addConstraint(Sketcher.Constraint("Coincident", 9, 2, 10, 1))
sketch4.addConstraint(Sketcher.Constraint("Coincident", 10, 2, 11, 1))
sketch4.addConstraint(Sketcher.Constraint("Coincident", 11, 2, 8, 1))
sketch4.addConstraint(Sketcher.Constraint("Vertical", 0))
sketch4.addConstraint(Sketcher.Constraint("Horizontal", 1))
sketch4.addConstraint(Sketcher.Constraint("Vertical", 2))
sketch4.addConstraint(Sketcher.Constraint("Horizontal", 3))
sketch4.addConstraint(Sketcher.Constraint("Vertical", 4))
sketch4.addConstraint(Sketcher.Constraint("Horizontal", 5))
sketch4.addConstraint(Sketcher.Constraint("Vertical", 6))
sketch4.addConstraint(Sketcher.Constraint("Horizontal", 7))
sketch4.addConstraint(Sketcher.Constraint("Vertical", 8))
sketch4.addConstraint(Sketcher.Constraint("Horizontal", 9))
sketch4.addConstraint(Sketcher.Constraint("Vertical", 10))
sketch4.addConstraint(Sketcher.Constraint("Horizontal", 11))
sketch4.addConstraint(Sketcher.Constraint("Vertical", 3, 2, 4, 2))
sketch4.addConstraint(Sketcher.Constraint("DistanceX", 5, 1, 5, 2, 3.258498))
sketch4.addConstraint(Sketcher.Constraint("DistanceX", 9, 1, 9, 2, 6.258978))
sketch4.addConstraint(Sketcher.Constraint("DistanceY", 4, 1, 4, 2, 7.25832))
sketch4.addConstraint(Sketcher.Constraint("DistanceX", 8, 2, -1, 1, 48.223199))
sketch4.addConstraint(Sketcher.Constraint("DistanceY", 4, 2, 0, 2, 22.703699))
sketch4.addConstraint(Sketcher.Constraint("DistanceX", 1, 1, 1, 2, 9.316082))
sketch4.addConstraint(Sketcher.Constraint("DistanceY", 0, 1, 0, 2, 8.485562))
sketch4.addConstraint(Sketcher.Constraint("DistanceY", 8, 1, 8, 2, 5.634617))
sketch4.addConstraint(Sketcher.Constraint("DistanceX", 1, 2, -1, 1, 39.201691))
sketch4.addConstraint(Sketcher.Constraint("DistanceY", 2, 2, -1, 1, 46.28034))
sketch4.addConstraint(Sketcher.Constraint("DistanceY", 10, 2, -1, 1, 95.17275))
pad4 = body.newObject("PartDesign::Pad", "Pad003")
pad4.Profile = sketch4
pad4.Length = 2
pad4.Reversed = True
doc.recompute()

chamfer = body.newObject("PartDesign::Chamfer", "Chamfer")
chamfer.Base = (pad4, edges_at(pad4, [
    (-76.191, 1, -102.486),
    (-6.191, 1, -102.486),
    (-6.191, 1, -22.486),
    (-76.191, 1, -22.486),
]))
chamfer.Size = 2
body2 = doc.addObject("PartDesign::Body", "Body001")

# Sketch on XY plane
sketch5 = body2.newObject("Sketcher::SketchObject", "Sketch004")
sketch5.AttachmentSupport = (doc.getObject("XY_Plane001"), [""])
sketch5.MapMode = "FlatFace"
sketch5.AttachmentOffset = App.Placement(App.Vector(0, 0, -22.486231), App.Rotation())
sketch5.addGeometry(Part.LineSegment(App.Vector(-73.191482, 0, 0), App.Vector(-73.191482, -9, 0)), False)
sketch5.addGeometry(Part.LineSegment(App.Vector(-73.191482, -9, 0), App.Vector(-70.191482, -9, 0)), False)
sketch5.addGeometry(Part.LineSegment(App.Vector(-70.191482, -9, 0), App.Vector(-70.191482, 0, 0)), False)
sketch5.addGeometry(Part.LineSegment(App.Vector(-70.191482, 0, 0), App.Vector(-73.191482, 0, 0)), False)
sketch5.addConstraint(Sketcher.Constraint("Coincident", 0, 2, 1, 1))
sketch5.addConstraint(Sketcher.Constraint("Coincident", 1, 2, 2, 1))
sketch5.addConstraint(Sketcher.Constraint("Coincident", 2, 2, 3, 1))
sketch5.addConstraint(Sketcher.Constraint("Coincident", 3, 2, 0, 1))
sketch5.addConstraint(Sketcher.Constraint("Vertical", 0))
sketch5.addConstraint(Sketcher.Constraint("Horizontal", 1))
sketch5.addConstraint(Sketcher.Constraint("Vertical", 2))
sketch5.addConstraint(Sketcher.Constraint("Horizontal", 3))
sketch5.addConstraint(Sketcher.Constraint("PointOnObject", 2, 2, -1))
sketch5.addConstraint(Sketcher.Constraint("DistanceX", 1, 1, 1, 2, 3.0))
sketch5.addConstraint(Sketcher.Constraint("DistanceY", 0, 2, 0, 1, 9.0))
sketch5.addConstraint(Sketcher.Constraint("DistanceX", 0, 2, -1, 1, 73.191482))
pad5 = body2.newObject("PartDesign::Pad", "Pad004")
pad5.Profile = sketch5
pad5.Length = 50
pad5.Reversed = True
body3 = doc.addObject("PartDesign::Body", "Body002")

# Sketch on XY plane
sketch6 = body3.newObject("Sketcher::SketchObject", "Sketch005")
sketch6.AttachmentSupport = (doc.getObject("XY_Plane002"), [""])
sketch6.MapMode = "FlatFace"
sketch6.AttachmentOffset = App.Placement(App.Vector(0, 0, -22.486231), App.Rotation())
sketch6.addGeometry(Part.LineSegment(App.Vector(-12.191482, 0, 0), App.Vector(-12.191482, -9, 0)), False)
sketch6.addGeometry(Part.LineSegment(App.Vector(-12.191482, -9, 0), App.Vector(-9.191482, -9, 0)), False)
sketch6.addGeometry(Part.LineSegment(App.Vector(-9.191482, -9, 0), App.Vector(-9.191482, 0, 0)), False)
sketch6.addGeometry(Part.LineSegment(App.Vector(-9.191482, 0, 0), App.Vector(-12.191482, 0, 0)), False)
sketch6.addConstraint(Sketcher.Constraint("Coincident", 0, 2, 1, 1))
sketch6.addConstraint(Sketcher.Constraint("Coincident", 1, 2, 2, 1))
sketch6.addConstraint(Sketcher.Constraint("Coincident", 2, 2, 3, 1))
sketch6.addConstraint(Sketcher.Constraint("Coincident", 3, 2, 0, 1))
sketch6.addConstraint(Sketcher.Constraint("Vertical", 0))
sketch6.addConstraint(Sketcher.Constraint("Horizontal", 1))
sketch6.addConstraint(Sketcher.Constraint("Vertical", 2))
sketch6.addConstraint(Sketcher.Constraint("Horizontal", 3))
sketch6.addConstraint(Sketcher.Constraint("PointOnObject", 2, 2, -1))
sketch6.addConstraint(Sketcher.Constraint("DistanceX", 1, 1, 1, 2, 3.0))
sketch6.addConstraint(Sketcher.Constraint("DistanceY", 0, 2, 0, 1, 9.0))
sketch6.addConstraint(Sketcher.Constraint("DistanceX", 0, 2, -1, 1, 12.191482))
pad6 = body3.newObject("PartDesign::Pad", "Pad005")
pad6.Profile = sketch6
pad6.Length = 50
pad6.Reversed = True

doc.recompute()
